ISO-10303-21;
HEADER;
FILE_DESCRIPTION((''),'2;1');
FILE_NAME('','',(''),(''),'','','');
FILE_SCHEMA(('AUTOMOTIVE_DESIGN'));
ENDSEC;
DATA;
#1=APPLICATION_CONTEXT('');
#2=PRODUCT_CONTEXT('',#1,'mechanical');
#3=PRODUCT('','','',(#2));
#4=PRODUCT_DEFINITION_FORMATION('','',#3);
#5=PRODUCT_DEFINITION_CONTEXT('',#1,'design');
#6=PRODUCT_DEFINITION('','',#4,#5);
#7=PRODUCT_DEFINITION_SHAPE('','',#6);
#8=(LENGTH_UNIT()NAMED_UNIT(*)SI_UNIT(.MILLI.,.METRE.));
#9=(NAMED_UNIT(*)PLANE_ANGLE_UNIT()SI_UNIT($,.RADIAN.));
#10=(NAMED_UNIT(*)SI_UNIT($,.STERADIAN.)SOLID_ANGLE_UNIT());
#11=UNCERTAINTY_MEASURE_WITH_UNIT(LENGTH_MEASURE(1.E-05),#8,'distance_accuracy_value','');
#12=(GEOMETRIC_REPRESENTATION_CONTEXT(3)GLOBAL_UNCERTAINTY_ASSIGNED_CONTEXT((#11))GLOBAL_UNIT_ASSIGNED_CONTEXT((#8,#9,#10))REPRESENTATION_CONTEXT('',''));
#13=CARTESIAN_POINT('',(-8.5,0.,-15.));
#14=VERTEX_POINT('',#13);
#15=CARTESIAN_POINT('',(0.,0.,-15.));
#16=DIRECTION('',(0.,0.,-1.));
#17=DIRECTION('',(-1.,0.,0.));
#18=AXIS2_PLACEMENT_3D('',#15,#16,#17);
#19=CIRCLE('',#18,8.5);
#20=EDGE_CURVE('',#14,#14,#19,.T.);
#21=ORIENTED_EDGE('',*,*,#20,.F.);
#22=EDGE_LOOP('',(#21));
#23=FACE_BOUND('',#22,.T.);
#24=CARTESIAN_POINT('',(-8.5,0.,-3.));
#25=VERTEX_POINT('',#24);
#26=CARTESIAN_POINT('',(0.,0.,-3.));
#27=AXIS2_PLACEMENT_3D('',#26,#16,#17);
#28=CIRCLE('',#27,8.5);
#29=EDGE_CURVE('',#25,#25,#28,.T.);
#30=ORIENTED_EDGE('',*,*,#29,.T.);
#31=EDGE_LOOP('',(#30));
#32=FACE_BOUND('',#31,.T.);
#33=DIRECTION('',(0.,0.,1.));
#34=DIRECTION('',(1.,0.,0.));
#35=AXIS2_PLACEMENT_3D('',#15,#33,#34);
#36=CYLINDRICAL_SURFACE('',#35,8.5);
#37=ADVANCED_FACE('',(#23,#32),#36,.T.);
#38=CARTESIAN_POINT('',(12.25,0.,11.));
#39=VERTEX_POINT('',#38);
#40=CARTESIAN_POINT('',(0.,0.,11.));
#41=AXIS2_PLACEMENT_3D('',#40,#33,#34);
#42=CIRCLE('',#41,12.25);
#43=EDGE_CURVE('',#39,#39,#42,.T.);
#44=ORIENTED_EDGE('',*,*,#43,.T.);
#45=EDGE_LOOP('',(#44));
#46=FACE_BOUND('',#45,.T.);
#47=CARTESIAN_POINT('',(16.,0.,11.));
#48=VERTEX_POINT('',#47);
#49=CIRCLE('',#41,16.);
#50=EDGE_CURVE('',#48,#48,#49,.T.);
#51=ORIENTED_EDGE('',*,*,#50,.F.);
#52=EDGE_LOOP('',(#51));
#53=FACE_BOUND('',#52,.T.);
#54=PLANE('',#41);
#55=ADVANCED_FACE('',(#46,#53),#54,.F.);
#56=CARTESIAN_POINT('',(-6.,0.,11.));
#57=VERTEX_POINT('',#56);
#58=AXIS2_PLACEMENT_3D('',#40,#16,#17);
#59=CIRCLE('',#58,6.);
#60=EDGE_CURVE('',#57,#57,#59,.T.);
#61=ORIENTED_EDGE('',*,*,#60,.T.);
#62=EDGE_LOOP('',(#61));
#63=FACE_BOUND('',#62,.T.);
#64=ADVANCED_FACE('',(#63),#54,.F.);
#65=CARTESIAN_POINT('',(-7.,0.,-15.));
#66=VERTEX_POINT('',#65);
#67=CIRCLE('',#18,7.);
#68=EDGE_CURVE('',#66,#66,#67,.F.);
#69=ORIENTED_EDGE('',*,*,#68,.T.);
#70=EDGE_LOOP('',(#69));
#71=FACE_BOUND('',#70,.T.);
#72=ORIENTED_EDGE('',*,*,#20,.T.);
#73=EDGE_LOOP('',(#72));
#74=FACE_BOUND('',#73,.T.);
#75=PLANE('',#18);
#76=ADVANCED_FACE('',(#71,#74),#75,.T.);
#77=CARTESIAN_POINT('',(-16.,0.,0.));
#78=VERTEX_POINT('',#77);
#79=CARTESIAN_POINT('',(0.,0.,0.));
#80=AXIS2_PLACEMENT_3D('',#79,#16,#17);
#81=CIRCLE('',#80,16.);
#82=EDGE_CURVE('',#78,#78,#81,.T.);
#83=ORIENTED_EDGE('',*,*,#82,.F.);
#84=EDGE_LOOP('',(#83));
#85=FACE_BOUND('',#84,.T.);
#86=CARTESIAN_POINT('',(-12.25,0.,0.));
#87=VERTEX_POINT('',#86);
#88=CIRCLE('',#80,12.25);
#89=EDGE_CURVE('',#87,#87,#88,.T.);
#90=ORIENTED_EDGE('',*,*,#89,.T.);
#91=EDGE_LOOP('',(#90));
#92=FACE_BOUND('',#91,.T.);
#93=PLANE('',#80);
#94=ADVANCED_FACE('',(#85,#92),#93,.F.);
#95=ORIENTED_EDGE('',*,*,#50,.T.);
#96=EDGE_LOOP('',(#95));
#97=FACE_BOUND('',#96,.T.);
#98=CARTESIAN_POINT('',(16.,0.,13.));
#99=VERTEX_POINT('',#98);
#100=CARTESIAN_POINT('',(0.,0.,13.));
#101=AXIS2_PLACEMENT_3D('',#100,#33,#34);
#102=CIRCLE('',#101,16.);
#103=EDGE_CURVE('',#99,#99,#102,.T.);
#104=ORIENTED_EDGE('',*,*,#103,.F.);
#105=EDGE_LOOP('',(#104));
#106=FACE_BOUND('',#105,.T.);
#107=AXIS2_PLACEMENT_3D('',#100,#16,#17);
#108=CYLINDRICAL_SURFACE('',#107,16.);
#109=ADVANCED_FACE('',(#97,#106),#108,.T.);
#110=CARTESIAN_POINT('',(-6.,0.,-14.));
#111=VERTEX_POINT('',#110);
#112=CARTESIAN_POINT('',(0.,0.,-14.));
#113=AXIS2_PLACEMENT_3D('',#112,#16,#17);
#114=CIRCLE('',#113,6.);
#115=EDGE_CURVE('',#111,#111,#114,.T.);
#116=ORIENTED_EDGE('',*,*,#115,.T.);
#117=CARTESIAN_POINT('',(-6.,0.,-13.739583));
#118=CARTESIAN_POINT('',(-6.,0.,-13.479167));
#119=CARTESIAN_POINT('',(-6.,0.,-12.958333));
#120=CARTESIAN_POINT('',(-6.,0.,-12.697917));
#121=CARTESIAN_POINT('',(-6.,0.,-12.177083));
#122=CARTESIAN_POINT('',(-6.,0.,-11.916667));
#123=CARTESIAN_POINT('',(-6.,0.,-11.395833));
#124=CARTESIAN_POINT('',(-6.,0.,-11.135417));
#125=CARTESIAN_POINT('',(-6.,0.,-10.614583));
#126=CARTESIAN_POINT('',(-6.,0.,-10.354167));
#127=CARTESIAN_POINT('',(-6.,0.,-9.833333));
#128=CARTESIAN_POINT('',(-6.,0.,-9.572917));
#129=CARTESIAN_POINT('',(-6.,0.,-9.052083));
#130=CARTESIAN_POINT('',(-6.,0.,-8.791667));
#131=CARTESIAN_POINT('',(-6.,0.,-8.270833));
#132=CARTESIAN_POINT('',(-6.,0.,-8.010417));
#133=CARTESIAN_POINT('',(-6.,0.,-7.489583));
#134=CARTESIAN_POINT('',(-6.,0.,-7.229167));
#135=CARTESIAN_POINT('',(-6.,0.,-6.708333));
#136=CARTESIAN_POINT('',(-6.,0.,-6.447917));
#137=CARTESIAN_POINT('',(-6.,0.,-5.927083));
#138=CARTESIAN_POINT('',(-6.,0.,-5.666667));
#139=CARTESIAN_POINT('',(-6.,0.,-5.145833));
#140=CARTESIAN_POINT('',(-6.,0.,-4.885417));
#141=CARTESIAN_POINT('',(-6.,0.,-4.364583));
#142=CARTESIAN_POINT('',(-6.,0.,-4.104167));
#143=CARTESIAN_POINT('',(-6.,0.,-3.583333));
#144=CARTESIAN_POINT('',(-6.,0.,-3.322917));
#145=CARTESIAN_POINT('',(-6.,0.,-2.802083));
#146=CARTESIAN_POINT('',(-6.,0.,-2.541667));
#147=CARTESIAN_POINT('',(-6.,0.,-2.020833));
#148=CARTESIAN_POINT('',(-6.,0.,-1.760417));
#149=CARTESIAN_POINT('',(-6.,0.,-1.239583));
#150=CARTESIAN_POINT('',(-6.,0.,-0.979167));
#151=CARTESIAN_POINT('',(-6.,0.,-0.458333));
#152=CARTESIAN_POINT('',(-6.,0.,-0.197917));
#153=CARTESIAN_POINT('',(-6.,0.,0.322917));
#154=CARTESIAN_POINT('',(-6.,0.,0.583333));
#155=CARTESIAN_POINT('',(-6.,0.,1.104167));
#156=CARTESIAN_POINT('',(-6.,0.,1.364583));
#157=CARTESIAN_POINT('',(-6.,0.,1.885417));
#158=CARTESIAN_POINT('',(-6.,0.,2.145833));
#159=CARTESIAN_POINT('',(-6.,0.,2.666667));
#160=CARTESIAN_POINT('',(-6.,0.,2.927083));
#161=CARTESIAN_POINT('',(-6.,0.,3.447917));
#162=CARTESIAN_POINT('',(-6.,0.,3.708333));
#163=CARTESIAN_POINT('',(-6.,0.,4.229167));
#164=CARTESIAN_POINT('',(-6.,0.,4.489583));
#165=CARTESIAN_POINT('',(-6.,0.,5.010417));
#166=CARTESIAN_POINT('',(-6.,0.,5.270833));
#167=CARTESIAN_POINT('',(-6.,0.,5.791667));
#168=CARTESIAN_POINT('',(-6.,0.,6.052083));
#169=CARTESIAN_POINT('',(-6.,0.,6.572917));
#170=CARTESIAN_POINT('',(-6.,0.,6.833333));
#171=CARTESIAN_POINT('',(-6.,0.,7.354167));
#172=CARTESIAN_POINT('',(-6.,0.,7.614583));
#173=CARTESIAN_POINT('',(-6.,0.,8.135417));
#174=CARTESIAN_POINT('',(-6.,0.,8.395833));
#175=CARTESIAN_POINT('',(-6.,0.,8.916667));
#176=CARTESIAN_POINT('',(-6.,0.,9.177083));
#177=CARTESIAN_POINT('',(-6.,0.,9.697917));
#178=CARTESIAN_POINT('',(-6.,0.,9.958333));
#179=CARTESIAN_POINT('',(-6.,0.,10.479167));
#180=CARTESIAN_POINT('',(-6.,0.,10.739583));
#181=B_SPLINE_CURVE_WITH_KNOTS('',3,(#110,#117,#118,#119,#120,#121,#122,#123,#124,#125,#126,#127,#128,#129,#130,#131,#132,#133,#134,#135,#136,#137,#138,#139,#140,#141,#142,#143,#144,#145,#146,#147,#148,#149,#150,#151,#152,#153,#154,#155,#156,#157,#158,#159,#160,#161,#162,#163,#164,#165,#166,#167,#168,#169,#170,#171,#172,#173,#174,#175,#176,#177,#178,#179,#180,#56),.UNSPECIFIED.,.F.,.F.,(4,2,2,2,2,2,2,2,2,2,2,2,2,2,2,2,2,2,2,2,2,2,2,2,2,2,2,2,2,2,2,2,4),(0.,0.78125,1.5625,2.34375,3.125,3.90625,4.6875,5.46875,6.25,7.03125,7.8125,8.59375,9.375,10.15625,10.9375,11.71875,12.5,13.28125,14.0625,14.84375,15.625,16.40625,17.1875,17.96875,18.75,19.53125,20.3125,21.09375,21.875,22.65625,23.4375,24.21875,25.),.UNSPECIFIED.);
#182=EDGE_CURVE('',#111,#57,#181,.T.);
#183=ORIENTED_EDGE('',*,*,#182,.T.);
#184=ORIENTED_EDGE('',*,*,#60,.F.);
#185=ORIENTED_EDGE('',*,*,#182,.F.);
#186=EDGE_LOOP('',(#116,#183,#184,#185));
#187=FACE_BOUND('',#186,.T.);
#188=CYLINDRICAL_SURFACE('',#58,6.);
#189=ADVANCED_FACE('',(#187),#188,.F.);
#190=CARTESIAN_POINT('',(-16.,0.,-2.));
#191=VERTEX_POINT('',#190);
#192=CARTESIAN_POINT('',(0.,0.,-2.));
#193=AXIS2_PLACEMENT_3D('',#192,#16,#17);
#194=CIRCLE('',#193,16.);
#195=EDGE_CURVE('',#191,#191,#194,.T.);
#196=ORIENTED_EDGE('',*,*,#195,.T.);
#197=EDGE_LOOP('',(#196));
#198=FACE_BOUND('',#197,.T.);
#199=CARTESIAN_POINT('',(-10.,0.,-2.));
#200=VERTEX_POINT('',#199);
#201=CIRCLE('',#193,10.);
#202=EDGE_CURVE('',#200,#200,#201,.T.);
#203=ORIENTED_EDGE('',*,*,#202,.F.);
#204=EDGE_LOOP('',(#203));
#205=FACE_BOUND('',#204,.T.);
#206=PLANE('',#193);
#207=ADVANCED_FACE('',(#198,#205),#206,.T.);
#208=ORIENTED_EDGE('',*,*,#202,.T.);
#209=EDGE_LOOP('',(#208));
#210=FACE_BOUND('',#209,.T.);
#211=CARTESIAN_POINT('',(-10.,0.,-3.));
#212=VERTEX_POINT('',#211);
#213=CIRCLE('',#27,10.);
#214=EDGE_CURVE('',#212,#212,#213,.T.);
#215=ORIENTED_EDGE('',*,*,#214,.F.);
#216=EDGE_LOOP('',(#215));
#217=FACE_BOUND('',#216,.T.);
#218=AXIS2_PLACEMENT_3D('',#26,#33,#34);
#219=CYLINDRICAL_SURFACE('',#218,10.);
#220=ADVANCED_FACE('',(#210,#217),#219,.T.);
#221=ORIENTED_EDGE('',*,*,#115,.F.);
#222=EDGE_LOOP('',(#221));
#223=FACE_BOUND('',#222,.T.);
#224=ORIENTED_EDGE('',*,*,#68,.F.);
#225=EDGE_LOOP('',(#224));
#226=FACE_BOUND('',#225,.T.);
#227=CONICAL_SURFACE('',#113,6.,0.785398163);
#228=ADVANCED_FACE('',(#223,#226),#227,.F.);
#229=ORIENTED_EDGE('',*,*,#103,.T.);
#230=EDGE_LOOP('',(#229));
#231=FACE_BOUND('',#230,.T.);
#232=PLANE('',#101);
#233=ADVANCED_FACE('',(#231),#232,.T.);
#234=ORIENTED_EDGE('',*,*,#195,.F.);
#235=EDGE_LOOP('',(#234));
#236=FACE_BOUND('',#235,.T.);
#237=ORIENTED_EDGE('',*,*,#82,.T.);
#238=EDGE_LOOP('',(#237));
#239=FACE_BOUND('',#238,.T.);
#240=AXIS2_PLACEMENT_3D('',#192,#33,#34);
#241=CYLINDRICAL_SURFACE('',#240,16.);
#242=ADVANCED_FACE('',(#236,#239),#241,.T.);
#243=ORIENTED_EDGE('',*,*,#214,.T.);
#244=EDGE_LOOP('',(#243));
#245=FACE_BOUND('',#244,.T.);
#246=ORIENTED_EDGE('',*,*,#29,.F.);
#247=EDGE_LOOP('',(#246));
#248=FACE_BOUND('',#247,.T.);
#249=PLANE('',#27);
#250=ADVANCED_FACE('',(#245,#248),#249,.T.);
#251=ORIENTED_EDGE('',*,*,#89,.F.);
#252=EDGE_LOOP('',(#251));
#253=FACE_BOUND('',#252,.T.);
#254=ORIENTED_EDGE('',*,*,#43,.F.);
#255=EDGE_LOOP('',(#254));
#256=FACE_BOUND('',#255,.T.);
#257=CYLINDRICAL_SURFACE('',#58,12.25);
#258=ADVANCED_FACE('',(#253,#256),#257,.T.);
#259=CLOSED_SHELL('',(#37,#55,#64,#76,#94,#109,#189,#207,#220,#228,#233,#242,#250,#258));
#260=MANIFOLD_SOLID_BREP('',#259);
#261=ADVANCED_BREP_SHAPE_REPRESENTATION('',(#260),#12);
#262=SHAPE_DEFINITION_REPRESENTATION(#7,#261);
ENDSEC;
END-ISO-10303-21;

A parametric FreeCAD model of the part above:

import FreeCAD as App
import Part
import Sketcher
from FreeCAD import Vector
Q = App.Units.Quantity


def edges_at(feature, points):
    """Names of the edges that pass closest to the given points."""
    edges = feature.Shape.Edges
    near = lambda p: min(range(len(edges)), key=lambda i: edges[i].distToShape(Part.Vertex(*p))[0])
    return sorted({f"Edge{near(p) + 1}" for p in points})

doc = App.newDocument("Part")
body = doc.addObject("PartDesign::Body", "Body")

sketch1 = doc.addObject("Sketcher::SketchObject", "Sketch")
body.addObject(sketch1)
sketch1.AttachmentSupport = (doc.XY_Plane, [""])
sketch1.MapMode = "FlatFace"
sketch1.addGeometry(Part.Circle(Vector(0, 0, 0), Vector(0, 0, 1), 12), False)
sketch1.addConstraint(Sketcher.Constraint("Coincident", 0, 3, -1, 1))
sketch1.addConstraint(Sketcher.Constraint("Diameter", 0, Q("24.5 mm")))
pad1 = doc.addObject("PartDesign::Pad", "Pad")
body.addObject(pad1)
pad1.Profile = sketch1
pad1.Length = 11

sketch2 = doc.addObject("Sketcher::SketchObject", "Sketch001")
body.addObject(sketch2)
sketch2.AttachmentSupport = (doc.XY_Plane, [""])
sketch2.MapMode = "FlatFace"
sketch2.addGeometry(Part.Circle(Vector(0, 0, 0), Vector(0, 0, 1), 16), False)
sketch2.addConstraint(Sketcher.Constraint("Coincident", 0, 3, -1, 1))
sketch2.addConstraint(Sketcher.Constraint("Diameter", 0, Q("32 mm")))
pad2 = doc.addObject("PartDesign::Pad", "Pad001")
body.addObject(pad2)
pad2.Profile = sketch2
pad2.Length = 2
pad2.Reversed = True

sketch3 = doc.addObject("Sketcher::SketchObject", "Sketch002")
body.addObject(sketch3)
sketch3.AttachmentSupport = (doc.XY_Plane, [""])
sketch3.MapMode = "FlatFace"
sketch3.AttachmentOffset = App.Placement(Vector(0, 0, -2), App.Rotation())
sketch3.addGeometry(Part.Circle(Vector(0, 0, 0), Vector(0, 0, 1), 10), False)
sketch3.addConstraint(Sketcher.Constraint("Coincident", 0, 3, -1, 1))
sketch3.addConstraint(Sketcher.Constraint("Diameter", 0, Q("20 mm")))
pad3 = doc.addObject("PartDesign::Pad", "Pad002")
body.addObject(pad3)
pad3.Profile = sketch3
pad3.Length = 1
pad3.Reversed = True

sketch4 = doc.addObject("Sketcher::SketchObject", "Sketch003")
body.addObject(sketch4)
sketch4.AttachmentSupport = (doc.XY_Plane, [""])
sketch4.MapMode = "FlatFace"
sketch4.AttachmentOffset = App.Placement(Vector(0, 0, -3), App.Rotation())
sketch4.addGeometry(Part.Circle(Vector(0, 0, 0), Vector(0, 0, 1), 8), False)
sketch4.addConstraint(Sketcher.Constraint("Coincident", 0, 3, -1, 1))
sketch4.addConstraint(Sketcher.Constraint("Diameter", 0, Q("17 mm")))
pad4 = doc.addObject("PartDesign::Pad", "Pad003")
body.addObject(pad4)
pad4.Profile = sketch4
pad4.Length = 12
pad4.Reversed = True

sketch5 = doc.addObject("Sketcher::SketchObject", "Sketch004")
body.addObject(sketch5)
sketch5.AttachmentSupport = (doc.XY_Plane, [""])
sketch5.MapMode = "FlatFace"
sketch5.AttachmentOffset = App.Placement(Vector(0, 0, -15), App.Rotation())
sketch5.addGeometry(Part.Circle(Vector(0, 0, 0), Vector(0, 0, 1), 6), False)
sketch5.addConstraint(Sketcher.Constraint("Coincident", 0, 3, -1, 1))
sketch5.addConstraint(Sketcher.Constraint("Diameter", 0, Q("12 mm")))
pocket1 = doc.addObject("PartDesign::Pocket", "Pocket")
body.addObject(pocket1)
pocket1.Profile = sketch5
pocket1.Type = "ThroughAll"
pocket1.Reversed = True
doc.recompute()

chamfer = doc.addObject("PartDesign::Chamfer", "Chamfer")
body.addObject(chamfer)
chamfer.Base = (pocket1, edges_at(pocket1, [(6, 0, -15)]))
chamfer.Size = 1

sketch6 = doc.addObject("Sketcher::SketchObject", "Sketch005")
body.addObject(sketch6)
sketch6.AttachmentSupport = (doc.XY_Plane, [""])
sketch6.MapMode = "FlatFace"
sketch6.AttachmentOffset = App.Placement(Vector(0, 0, 13), App.Rotation())
sketch6.addGeometry(Part.Circle(Vector(0, 0, 0), Vector(0, 0, 1), 16), False)
sketch6.addConstraint(Sketcher.Constraint("Coincident", 0, 3, -1, 1))
sketch6.addConstraint(Sketcher.Constraint("Diameter", 0, Q("32 mm")))
pad5 = doc.addObject("PartDesign::Pad", "Pad004")
body.addObject(pad5)
pad5.Profile = sketch6
pad5.Length = 2
pad5.Reversed = True

doc.recompute()
